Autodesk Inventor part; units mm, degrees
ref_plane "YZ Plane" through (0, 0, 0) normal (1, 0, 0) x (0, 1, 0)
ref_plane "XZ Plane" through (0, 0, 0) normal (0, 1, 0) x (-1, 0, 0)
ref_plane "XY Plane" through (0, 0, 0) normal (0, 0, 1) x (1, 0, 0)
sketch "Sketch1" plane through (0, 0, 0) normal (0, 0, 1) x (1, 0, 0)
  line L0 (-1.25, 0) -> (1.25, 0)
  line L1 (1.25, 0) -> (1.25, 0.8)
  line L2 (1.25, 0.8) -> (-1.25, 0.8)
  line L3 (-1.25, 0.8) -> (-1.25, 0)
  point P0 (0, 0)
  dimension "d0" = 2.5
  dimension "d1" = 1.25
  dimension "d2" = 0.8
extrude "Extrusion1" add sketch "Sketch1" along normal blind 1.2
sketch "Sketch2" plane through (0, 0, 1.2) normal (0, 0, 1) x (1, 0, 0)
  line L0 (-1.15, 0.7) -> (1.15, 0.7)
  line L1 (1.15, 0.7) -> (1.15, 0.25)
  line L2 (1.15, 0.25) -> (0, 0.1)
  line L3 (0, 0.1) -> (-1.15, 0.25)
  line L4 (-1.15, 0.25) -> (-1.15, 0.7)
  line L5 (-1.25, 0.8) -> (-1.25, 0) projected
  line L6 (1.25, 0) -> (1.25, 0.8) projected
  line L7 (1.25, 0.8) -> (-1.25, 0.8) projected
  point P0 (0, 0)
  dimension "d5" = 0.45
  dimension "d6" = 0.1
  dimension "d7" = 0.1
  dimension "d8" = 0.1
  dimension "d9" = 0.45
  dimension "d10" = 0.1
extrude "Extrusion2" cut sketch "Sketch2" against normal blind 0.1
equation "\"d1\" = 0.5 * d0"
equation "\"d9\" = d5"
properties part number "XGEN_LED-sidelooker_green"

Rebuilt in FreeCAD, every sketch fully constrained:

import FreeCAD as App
import Part
import Sketcher
Q = App.Units.Quantity


def add_polygon(sketch, points):
    """Adds a closed chain of lines whose ends are joined by coincident constraints."""
    first, n = sketch.GeometryCount, len(points)
    for a, b in zip(points, points[1:] + points[:1]):
        sketch.addGeometry(Part.LineSegment(App.Vector(*a, 0), App.Vector(*b, 0)), False)
    for i in range(n):
        sketch.addConstraint(Sketcher.Constraint("Coincident", first + i, 2, first + (i + 1) % n, 1))

doc = App.newDocument("Part")
body = doc.addObject("PartDesign::Body", "Body")

sketch1 = body.newObject("Sketcher::SketchObject", "Sketch")
sketch1.AttachmentSupport = (doc.getObject("XY_Plane"), [""])
sketch1.MapMode = "FlatFace"
add_polygon(sketch1, [(-1.25, 0.8), (-1.25, 0), (1.25, 0), (1.25, 0.8)])
sketch1.addConstraint([
    Sketcher.Constraint("Vertical", 0),
    Sketcher.Constraint("Horizontal", 1),
    Sketcher.Constraint("Vertical", 2),
    Sketcher.Constraint("Horizontal", 3),
    Sketcher.Constraint("Symmetric", 0, 2, 1, 2, -1, 1),
    Sketcher.Constraint("DistanceX", 1, 1, 1, 2, Q("2.5 mm")),
    Sketcher.Constraint("DistanceY", 0, 2, 0, 1, Q("0.8 mm")),
])
pad1 = body.newObject("PartDesign::Pad", "Pad")
pad1.Profile = sketch1
pad1.Length = 1.2

sketch2 = body.newObject("Sketcher::SketchObject", "Sketch001")
sketch2.AttachmentSupport = (doc.getObject("XY_Plane"), [""])
sketch2.MapMode = "FlatFace"
sketch2.AttachmentOffset = App.Placement(App.Vector(0, 0, 1.2), App.Rotation())
add_polygon(sketch2, [(1.15, 0.7), (-1.15, 0.7), (-1.15, 0.25), (0, 0.1), (1.15, 0.25)])
sketch2.addConstraint([
    Sketcher.Constraint("Horizontal", 0),
    Sketcher.Constraint("Vertical", 1),
    Sketcher.Constraint("Vertical", 4),
    Sketcher.Constraint("Symmetric", 1, 2, 3, 2, -2),
    Sketcher.Constraint("PointOnObject", 2, 2, -2),
    Sketcher.Constraint("DistanceY", 1, 2, 1, 1, Q("0.45 mm")),
    Sketcher.Constraint("DistanceY", -1, 1, 2, 2, Q("0.1 mm")),
    Sketcher.Constraint("DistanceX", 0, 2, 0, 1, Q("2.3 mm")),
    Sketcher.Constraint("DistanceY", -1, 1, 0, 2, Q("0.7 mm")),
])
pocket1 = body.newObject("PartDesign::Pocket", "Pocket")
pocket1.Profile = sketch2
pocket1.Length = 0.1

doc.recompute()
